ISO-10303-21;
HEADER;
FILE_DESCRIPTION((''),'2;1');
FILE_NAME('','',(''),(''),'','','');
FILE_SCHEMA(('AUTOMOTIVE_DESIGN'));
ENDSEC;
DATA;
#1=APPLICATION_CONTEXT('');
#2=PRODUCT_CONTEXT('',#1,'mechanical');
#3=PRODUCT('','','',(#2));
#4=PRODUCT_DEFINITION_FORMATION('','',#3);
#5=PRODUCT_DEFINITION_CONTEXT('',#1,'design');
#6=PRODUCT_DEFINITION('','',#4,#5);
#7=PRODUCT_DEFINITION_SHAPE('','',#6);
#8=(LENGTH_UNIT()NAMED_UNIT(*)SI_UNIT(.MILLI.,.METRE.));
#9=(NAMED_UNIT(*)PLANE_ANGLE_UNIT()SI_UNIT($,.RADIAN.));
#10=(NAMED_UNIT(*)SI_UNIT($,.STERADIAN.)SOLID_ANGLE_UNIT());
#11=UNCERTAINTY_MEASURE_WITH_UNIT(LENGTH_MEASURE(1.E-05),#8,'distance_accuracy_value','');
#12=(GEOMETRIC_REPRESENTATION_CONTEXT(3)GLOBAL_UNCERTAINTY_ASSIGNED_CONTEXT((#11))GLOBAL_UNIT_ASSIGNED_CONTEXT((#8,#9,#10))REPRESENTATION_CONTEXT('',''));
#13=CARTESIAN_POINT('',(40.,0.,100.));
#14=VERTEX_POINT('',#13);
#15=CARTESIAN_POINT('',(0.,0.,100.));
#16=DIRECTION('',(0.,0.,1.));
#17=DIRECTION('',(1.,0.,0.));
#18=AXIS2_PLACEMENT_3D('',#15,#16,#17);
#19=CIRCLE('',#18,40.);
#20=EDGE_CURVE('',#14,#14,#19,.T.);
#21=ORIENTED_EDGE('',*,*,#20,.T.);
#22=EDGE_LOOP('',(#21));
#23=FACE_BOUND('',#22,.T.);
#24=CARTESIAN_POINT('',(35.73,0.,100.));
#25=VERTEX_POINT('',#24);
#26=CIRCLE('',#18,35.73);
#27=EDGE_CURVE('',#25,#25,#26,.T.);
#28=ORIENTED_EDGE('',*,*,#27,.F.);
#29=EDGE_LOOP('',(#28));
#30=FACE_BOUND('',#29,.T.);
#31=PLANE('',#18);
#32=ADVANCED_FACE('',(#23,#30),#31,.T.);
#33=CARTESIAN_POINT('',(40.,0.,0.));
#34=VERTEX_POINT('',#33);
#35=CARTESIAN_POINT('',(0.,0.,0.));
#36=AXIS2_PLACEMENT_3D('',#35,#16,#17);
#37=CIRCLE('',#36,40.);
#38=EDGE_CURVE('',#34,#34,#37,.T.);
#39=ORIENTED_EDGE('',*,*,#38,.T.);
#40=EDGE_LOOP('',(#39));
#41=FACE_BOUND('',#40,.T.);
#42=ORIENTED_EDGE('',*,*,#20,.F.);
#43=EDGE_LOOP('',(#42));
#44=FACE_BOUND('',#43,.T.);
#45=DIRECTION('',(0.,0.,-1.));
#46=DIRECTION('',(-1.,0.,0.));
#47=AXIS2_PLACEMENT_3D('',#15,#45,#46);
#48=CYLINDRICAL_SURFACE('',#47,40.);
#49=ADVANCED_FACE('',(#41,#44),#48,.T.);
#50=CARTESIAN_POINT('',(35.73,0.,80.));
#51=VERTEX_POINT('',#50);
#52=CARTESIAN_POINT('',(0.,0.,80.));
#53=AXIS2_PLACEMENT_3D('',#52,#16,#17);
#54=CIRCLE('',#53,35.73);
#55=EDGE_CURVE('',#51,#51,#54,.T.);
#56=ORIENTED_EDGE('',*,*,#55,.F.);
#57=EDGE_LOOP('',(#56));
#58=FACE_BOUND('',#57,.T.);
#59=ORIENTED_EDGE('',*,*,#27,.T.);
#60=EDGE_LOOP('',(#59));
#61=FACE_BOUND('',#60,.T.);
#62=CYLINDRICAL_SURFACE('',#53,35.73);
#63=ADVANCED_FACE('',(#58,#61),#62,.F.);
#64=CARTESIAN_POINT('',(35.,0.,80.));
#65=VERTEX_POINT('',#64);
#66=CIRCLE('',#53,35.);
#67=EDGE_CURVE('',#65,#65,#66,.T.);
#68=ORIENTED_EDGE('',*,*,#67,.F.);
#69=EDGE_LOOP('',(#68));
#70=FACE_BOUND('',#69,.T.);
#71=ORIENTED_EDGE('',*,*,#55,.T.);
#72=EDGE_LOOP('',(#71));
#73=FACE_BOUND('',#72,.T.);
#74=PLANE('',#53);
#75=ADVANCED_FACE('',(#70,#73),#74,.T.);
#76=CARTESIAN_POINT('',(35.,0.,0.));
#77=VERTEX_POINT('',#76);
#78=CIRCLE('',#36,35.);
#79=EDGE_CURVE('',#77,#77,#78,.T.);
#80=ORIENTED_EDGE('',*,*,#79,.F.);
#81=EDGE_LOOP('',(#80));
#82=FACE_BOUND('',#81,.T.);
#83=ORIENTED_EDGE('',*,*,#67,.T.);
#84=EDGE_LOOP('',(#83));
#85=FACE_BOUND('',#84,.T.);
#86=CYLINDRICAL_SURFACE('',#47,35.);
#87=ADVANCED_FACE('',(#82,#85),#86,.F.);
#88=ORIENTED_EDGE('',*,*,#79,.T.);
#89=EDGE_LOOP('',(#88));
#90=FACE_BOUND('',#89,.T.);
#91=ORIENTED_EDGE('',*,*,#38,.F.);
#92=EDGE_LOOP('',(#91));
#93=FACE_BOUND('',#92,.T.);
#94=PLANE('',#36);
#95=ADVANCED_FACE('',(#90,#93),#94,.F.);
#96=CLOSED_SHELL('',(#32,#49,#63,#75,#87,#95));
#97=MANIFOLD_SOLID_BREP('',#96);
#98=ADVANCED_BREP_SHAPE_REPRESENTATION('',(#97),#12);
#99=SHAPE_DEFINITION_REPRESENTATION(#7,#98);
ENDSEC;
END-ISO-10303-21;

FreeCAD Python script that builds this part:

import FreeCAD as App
import Part
import Sketcher
from FreeCAD import Vector
Q = App.Units.Quantity

doc = App.newDocument("Part")
body = doc.addObject("PartDesign::Body", "Body")

# Sketch on XY plane
sketch1 = doc.addObject("Sketcher::SketchObject", "Sketch")
body.addObject(sketch1)
sketch1.AttachmentSupport = (doc.XY_Plane, [""])
sketch1.MapMode = "FlatFace"
sketch1.addGeometry(Part.Circle(Vector(0, 0, 0), Vector(0, 0, 1), 40), False)
sketch1.addGeometry(Part.Circle(Vector(0, 0, 0), Vector(0, 0, 1), 35), False)
sketch1.addConstraint(Sketcher.Constraint("Coincident", 0, 3, -1, 1))
sketch1.addConstraint(Sketcher.Constraint("Coincident", 1, 3, -1, 1))
sketch1.addConstraint(Sketcher.Constraint("Diameter", 0, Q("80 mm")))
sketch1.addConstraint(Sketcher.Constraint("Diameter", 1, Q("70 mm")))
pad1 = doc.addObject("PartDesign::Pad", "Pad")
body.addObject(pad1)
pad1.Profile = sketch1
pad1.Length = 100

# Sketch on XY plane
sketch2 = doc.addObject("Sketcher::SketchObject", "Sketch001")
body.addObject(sketch2)
sketch2.AttachmentSupport = (doc.XY_Plane, [""])
sketch2.MapMode = "FlatFace"
sketch2.AttachmentOffset = App.Placement(Vector(0, 0, 100), App.Rotation())
sketch2.addGeometry(Part.Circle(Vector(0, 0, 0), Vector(0, 0, 1), 36), False)
sketch2.addConstraint(Sketcher.Constraint("Coincident", 0, 3, -1, 1))
sketch2.addConstraint(Sketcher.Constraint("Diameter", 0, Q("71.46 mm")))
pocket1 = doc.addObject("PartDesign::Pocket", "Pocket")
body.addObject(pocket1)
pocket1.Profile = sketch2
pocket1.Length = 20

doc.recompute()
